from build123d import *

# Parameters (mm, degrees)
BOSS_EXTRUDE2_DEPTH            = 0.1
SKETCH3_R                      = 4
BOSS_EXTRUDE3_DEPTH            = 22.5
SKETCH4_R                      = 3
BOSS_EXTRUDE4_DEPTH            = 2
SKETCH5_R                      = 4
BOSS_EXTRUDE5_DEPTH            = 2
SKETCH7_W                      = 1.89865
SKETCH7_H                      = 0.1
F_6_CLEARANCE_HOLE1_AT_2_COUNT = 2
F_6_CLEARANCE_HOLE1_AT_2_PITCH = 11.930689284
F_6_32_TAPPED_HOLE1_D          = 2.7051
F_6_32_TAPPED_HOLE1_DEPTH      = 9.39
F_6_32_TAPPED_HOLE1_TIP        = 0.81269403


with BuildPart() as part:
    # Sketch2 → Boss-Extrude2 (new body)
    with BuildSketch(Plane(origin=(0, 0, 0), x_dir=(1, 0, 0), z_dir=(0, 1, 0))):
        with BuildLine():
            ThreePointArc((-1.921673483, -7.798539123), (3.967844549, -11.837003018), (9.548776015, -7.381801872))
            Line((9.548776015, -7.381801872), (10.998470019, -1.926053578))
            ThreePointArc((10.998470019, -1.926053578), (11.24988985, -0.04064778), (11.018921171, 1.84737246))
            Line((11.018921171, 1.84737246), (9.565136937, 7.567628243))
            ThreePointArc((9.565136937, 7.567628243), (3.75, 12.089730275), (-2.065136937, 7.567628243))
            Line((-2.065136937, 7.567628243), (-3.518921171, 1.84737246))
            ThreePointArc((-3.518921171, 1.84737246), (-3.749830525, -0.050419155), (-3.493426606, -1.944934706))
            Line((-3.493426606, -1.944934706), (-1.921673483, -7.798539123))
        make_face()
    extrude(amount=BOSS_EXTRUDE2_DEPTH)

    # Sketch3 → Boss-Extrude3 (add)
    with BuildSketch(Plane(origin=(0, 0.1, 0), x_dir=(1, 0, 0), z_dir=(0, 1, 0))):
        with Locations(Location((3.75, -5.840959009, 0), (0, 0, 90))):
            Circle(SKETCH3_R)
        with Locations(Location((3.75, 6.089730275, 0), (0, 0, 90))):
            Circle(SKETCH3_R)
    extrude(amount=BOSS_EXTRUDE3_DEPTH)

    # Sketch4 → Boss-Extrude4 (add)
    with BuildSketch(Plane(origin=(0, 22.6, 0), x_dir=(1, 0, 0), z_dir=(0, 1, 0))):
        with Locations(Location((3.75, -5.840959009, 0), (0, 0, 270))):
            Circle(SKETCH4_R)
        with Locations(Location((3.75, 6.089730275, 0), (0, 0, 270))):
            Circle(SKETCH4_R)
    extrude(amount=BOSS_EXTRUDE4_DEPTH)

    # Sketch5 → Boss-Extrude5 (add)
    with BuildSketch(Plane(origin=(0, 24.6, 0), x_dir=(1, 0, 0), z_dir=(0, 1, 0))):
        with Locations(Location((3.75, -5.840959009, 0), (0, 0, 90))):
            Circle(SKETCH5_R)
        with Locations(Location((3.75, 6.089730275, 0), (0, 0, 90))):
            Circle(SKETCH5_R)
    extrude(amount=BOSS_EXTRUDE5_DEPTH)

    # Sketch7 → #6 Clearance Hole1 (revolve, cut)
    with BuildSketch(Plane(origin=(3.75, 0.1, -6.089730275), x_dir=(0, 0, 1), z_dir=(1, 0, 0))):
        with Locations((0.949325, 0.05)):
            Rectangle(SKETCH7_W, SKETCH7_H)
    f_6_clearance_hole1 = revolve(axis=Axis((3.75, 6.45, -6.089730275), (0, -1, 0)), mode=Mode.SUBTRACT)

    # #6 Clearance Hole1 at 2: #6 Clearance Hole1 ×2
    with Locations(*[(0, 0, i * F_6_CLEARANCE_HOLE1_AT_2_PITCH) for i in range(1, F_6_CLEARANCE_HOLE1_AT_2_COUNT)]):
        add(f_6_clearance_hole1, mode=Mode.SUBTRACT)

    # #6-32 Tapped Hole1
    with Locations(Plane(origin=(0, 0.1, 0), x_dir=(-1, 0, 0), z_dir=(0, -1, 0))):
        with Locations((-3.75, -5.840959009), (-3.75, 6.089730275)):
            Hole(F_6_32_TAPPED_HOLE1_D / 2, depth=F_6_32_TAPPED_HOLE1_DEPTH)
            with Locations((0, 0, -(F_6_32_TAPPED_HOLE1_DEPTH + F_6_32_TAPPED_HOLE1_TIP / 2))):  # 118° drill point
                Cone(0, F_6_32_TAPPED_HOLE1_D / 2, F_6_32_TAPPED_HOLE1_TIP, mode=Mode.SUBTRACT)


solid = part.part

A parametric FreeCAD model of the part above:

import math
import FreeCAD as App
import Part
import Sketcher

V = App.Vector
Q = App.Units.Quantity

doc = App.newDocument("Part")
body = doc.addObject("PartDesign::Body", "Body")

# Sketch on XZ plane
sketch1 = body.newObject("Sketcher::SketchObject", "Sketch")
sketch1.AttachmentSupport = (doc.getObject("XZ_Plane"), [""])
sketch1.MapMode = "FlatFace"
sketch1.addGeometry([
    Part.ArcOfCircle(Part.Circle(V(3.8, 5.8, 0), V(0, 0, 1), 6), math.radians(15), math.radians(161)),  # 0
    Part.LineSegment(V(9.5, 7.4, 0), V(11, 1.9, 0)),  # 1
    Part.ArcOfCircle(Part.Circle(V(3.8, 0, 0), V(0, 0, 1), 7.5), math.radians(-14), math.radians(15)),  # 2
    Part.LineSegment(V(11, -1.8, 0), V(9.6, -7.6, 0)),  # 3
    Part.ArcOfCircle(Part.Circle(V(3.8, -6.1, 0), V(0, 0, 1), 6), math.radians(-166), math.radians(-14)),  # 4
    Part.LineSegment(V(-2.1, -7.6, 0), V(-3.5, -1.8, 0)),  # 5
    Part.ArcOfCircle(Part.Circle(V(3.8, 0, 0), V(0, 0, 1), 7.5), math.radians(165), math.radians(194)),  # 6
    Part.LineSegment(V(-3.5, 1.9, 0), V(-1.9, 7.8, 0)),  # 7
], False)
sketch1.addConstraint([
    Sketcher.Constraint("Tangent", 0, 1, 1, 1),
    Sketcher.Constraint("Tangent", 1, 2, 2, 2),
    Sketcher.Constraint("Tangent", 2, 1, 3, 1),
    Sketcher.Constraint("Tangent", 3, 2, 4, 2),
    Sketcher.Constraint("Tangent", 4, 1, 5, 1),
    Sketcher.Constraint("Tangent", 5, 2, 6, 2),
    Sketcher.Constraint("Tangent", 6, 1, 7, 1),
    Sketcher.Constraint("Coincident", 7, 2, 0, 2),
    Sketcher.Constraint("Coincident", 6, 3, 2, 3),
    Sketcher.Constraint("Equal", 0, 4),
    Sketcher.Constraint("Equal", 2, 6),
    Sketcher.Constraint("PointOnObject", 2, 3, -1),
    Sketcher.Constraint("Horizontal", 3, 2, 4, 1),
    Sketcher.Constraint("Vertical", 0, 3, 2, 3),
    Sketcher.Constraint("Radius", 0, Q("6 mm")),
    Sketcher.Constraint("Radius", 2, Q("7.5 mm")),
    Sketcher.Constraint("Angle", 7, Q("74.970008 deg")),
    Sketcher.Constraint("DistanceX", -1, 1, 0, 3, Q("3.75 mm")),
    Sketcher.Constraint("DistanceY", -1, 1, 0, 1, Q("7.381802 mm")),
    Sketcher.Constraint("DistanceY", 4, 3, -1, 1, Q("6.08973 mm")),
])
pad1 = body.newObject("PartDesign::Pad", "Pad")
pad1.Profile = sketch1
pad1.Length = 0.1
pad1.Reversed = True

# Sketch on XZ plane
sketch2 = body.newObject("Sketcher::SketchObject", "Sketch001")
sketch2.AttachmentSupport = (doc.getObject("XZ_Plane"), [""])
sketch2.MapMode = "FlatFace"
sketch2.AttachmentOffset = App.Placement(V(0, 0, -0.1), App.Rotation())
sketch2.addGeometry([
    Part.Circle(V(3.8, 5.8, 0), V(0, 0, 1), 4),
    Part.Circle(V(3.8, -6.1, 0), V(0, 0, 1), 4),
], False)
sketch2.addConstraint([
    Sketcher.Constraint("Equal", 0, 1),
    Sketcher.Constraint("Vertical", 0, 3, 1, 3),
    Sketcher.Constraint("Diameter", 0, Q("8 mm")),
    Sketcher.Constraint("DistanceX", -1, 1, 0, 3, Q("3.75 mm")),
    Sketcher.Constraint("DistanceY", -1, 1, 0, 3, Q("5.840959 mm")),
    Sketcher.Constraint("DistanceY", 1, 3, -1, 1, Q("6.08973 mm")),
])
pad2 = body.newObject("PartDesign::Pad", "Pad001")
pad2.Profile = sketch2
pad2.Length = 22.5
pad2.Reversed = True

# Sketch on XZ plane
sketch3 = body.newObject("Sketcher::SketchObject", "Sketch002")
sketch3.AttachmentSupport = (doc.getObject("XZ_Plane"), [""])
sketch3.MapMode = "FlatFace"
sketch3.AttachmentOffset = App.Placement(V(0, 0, -22.6), App.Rotation())
sketch3.addGeometry([
    Part.Circle(V(3.8, 5.8, 0), V(0, 0, 1), 3),
    Part.Circle(V(3.8, -6.1, 0), V(0, 0, 1), 3),
], False)
sketch3.addConstraint([
    Sketcher.Constraint("Equal", 0, 1),
    Sketcher.Constraint("Vertical", 0, 3, 1, 3),
    Sketcher.Constraint("Diameter", 0, Q("6 mm")),
    Sketcher.Constraint("DistanceX", -1, 1, 0, 3, Q("3.75 mm")),
    Sketcher.Constraint("DistanceY", -1, 1, 0, 3, Q("5.840959 mm")),
    Sketcher.Constraint("DistanceY", 1, 3, -1, 1, Q("6.08973 mm")),
])
pad3 = body.newObject("PartDesign::Pad", "Pad002")
pad3.Profile = sketch3
pad3.Length = 2
pad3.Reversed = True

# Sketch on XZ plane
sketch4 = body.newObject("Sketcher::SketchObject", "Sketch003")
sketch4.AttachmentSupport = (doc.getObject("XZ_Plane"), [""])
sketch4.MapMode = "FlatFace"
sketch4.AttachmentOffset = App.Placement(V(0, 0, -24.6), App.Rotation())
sketch4.addGeometry([
    Part.Circle(V(3.8, 5.8, 0), V(0, 0, 1), 4),
    Part.Circle(V(3.8, -6.1, 0), V(0, 0, 1), 4),
], False)
sketch4.addConstraint([
    Sketcher.Constraint("Equal", 0, 1),
    Sketcher.Constraint("Vertical", 0, 3, 1, 3),
    Sketcher.Constraint("Diameter", 0, Q("8 mm")),
    Sketcher.Constraint("DistanceX", -1, 1, 0, 3, Q("3.75 mm")),
    Sketcher.Constraint("DistanceY", -1, 1, 0, 3, Q("5.840959 mm")),
    Sketcher.Constraint("DistanceY", 1, 3, -1, 1, Q("6.08973 mm")),
])
pad4 = body.newObject("PartDesign::Pad", "Pad003")
pad4.Profile = sketch4
pad4.Length = 2
pad4.Reversed = True

# Sketch on YZ plane
sketch5 = body.newObject("Sketcher::SketchObject", "Sketch004")
sketch5.AttachmentSupport = (doc.getObject("YZ_Plane"), [""])
sketch5.MapMode = "FlatFace"
sketch5.AttachmentOffset = App.Placement(V(0, 0, 3.75), App.Rotation())
sketch5.addGeometry([
    Part.LineSegment(V(0, -6.09, 0), V(0.1, -6.09, 0)),
    Part.LineSegment(V(0.1, -6.09, 0), V(0.1, -4.19, 0)),
    Part.LineSegment(V(0.1, -4.19, 0), V(0, -4.19, 0)),
    Part.LineSegment(V(0, -4.19, 0), V(0, -6.09, 0)),
], False)
sketch5.addGeometry(Part.LineSegment(V(0.1, -6.09, 0), V(0, -6.09, 0)), True)  # axis
sketch5.addConstraint([
    Sketcher.Constraint("Coincident", 0, 2, 1, 1),
    Sketcher.Constraint("Coincident", 1, 2, 2, 1),
    Sketcher.Constraint("Coincident", 2, 2, 3, 1),
    Sketcher.Constraint("Coincident", 3, 2, 0, 1),
    Sketcher.Constraint("Horizontal", 0),
    Sketcher.Constraint("Vertical", 1),
    Sketcher.Constraint("Horizontal", 2),
    Sketcher.Constraint("Vertical", 3),
    Sketcher.Constraint("Horizontal", 4),
    Sketcher.Constraint("Coincident", 4, 1, 0, 2),
    Sketcher.Constraint("PointOnObject", 2, 2, -2),
    Sketcher.Constraint("PointOnObject", 4, 2, -2),
    Sketcher.Constraint("DistanceX", 0, 1, 0, 2, Q("0.1 mm")),
    Sketcher.Constraint("DistanceY", 1, 1, 1, 2, Q("1.89865 mm")),
    Sketcher.Constraint("DistanceY", 0, 2, -1, 1, Q("6.08973 mm")),
])
groove = body.newObject("PartDesign::Groove", "Groove")
groove.Profile = sketch5
groove.ReferenceAxis = (sketch5, ["Axis0"])
groove.Angle = 360
doc.recompute()

linearpattern = body.newObject("PartDesign::LinearPattern", "LinearPattern")
linearpattern.Originals = [groove]
linearpattern.Direction = (doc.getObject("Z_Axis"), [""])
linearpattern.Mode = "offset"
linearpattern.Offset = 11.930689
linearpattern.Occurrences = 2
body.Tip = linearpattern

# Sketch on XZ plane
sketch6 = body.newObject("Sketcher::SketchObject", "Sketch005")
sketch6.AttachmentSupport = (doc.getObject("XZ_Plane"), [""])
sketch6.MapMode = "FlatFace"
sketch6.AttachmentOffset = App.Placement(V(0, 0, -0.1), App.Rotation())
sketch6.addGeometry([
    Part.Circle(V(3.8, 5.8, 0), V(0, 0, 1), 1.4),
    Part.Circle(V(3.8, -6.1, 0), V(0, 0, 1), 1.4),
], False)
sketch6.addConstraint([
    Sketcher.Constraint("Equal", 0, 1),
    Sketcher.Constraint("Vertical", 0, 3, 1, 3),
    Sketcher.Constraint("Diameter", 0, Q("2.7051 mm")),
    Sketcher.Constraint("DistanceX", -1, 1, 0, 3, Q("3.75 mm")),
    Sketcher.Constraint("DistanceY", -1, 1, 0, 3, Q("5.840959 mm")),
    Sketcher.Constraint("DistanceY", 1, 3, -1, 1, Q("6.08973 mm")),
])
doc.recompute()
hole = body.newObject("PartDesign::Hole", "Hole")
hole.Profile = sketch6
hole.ThreadType = "None"
hole.Diameter = 2.7051
hole.DepthType = "Dimension"
hole.Depth = 9.39
hole.DrillPoint = "Angled"
hole.DrillPointAngle = 118

doc.recompute()
